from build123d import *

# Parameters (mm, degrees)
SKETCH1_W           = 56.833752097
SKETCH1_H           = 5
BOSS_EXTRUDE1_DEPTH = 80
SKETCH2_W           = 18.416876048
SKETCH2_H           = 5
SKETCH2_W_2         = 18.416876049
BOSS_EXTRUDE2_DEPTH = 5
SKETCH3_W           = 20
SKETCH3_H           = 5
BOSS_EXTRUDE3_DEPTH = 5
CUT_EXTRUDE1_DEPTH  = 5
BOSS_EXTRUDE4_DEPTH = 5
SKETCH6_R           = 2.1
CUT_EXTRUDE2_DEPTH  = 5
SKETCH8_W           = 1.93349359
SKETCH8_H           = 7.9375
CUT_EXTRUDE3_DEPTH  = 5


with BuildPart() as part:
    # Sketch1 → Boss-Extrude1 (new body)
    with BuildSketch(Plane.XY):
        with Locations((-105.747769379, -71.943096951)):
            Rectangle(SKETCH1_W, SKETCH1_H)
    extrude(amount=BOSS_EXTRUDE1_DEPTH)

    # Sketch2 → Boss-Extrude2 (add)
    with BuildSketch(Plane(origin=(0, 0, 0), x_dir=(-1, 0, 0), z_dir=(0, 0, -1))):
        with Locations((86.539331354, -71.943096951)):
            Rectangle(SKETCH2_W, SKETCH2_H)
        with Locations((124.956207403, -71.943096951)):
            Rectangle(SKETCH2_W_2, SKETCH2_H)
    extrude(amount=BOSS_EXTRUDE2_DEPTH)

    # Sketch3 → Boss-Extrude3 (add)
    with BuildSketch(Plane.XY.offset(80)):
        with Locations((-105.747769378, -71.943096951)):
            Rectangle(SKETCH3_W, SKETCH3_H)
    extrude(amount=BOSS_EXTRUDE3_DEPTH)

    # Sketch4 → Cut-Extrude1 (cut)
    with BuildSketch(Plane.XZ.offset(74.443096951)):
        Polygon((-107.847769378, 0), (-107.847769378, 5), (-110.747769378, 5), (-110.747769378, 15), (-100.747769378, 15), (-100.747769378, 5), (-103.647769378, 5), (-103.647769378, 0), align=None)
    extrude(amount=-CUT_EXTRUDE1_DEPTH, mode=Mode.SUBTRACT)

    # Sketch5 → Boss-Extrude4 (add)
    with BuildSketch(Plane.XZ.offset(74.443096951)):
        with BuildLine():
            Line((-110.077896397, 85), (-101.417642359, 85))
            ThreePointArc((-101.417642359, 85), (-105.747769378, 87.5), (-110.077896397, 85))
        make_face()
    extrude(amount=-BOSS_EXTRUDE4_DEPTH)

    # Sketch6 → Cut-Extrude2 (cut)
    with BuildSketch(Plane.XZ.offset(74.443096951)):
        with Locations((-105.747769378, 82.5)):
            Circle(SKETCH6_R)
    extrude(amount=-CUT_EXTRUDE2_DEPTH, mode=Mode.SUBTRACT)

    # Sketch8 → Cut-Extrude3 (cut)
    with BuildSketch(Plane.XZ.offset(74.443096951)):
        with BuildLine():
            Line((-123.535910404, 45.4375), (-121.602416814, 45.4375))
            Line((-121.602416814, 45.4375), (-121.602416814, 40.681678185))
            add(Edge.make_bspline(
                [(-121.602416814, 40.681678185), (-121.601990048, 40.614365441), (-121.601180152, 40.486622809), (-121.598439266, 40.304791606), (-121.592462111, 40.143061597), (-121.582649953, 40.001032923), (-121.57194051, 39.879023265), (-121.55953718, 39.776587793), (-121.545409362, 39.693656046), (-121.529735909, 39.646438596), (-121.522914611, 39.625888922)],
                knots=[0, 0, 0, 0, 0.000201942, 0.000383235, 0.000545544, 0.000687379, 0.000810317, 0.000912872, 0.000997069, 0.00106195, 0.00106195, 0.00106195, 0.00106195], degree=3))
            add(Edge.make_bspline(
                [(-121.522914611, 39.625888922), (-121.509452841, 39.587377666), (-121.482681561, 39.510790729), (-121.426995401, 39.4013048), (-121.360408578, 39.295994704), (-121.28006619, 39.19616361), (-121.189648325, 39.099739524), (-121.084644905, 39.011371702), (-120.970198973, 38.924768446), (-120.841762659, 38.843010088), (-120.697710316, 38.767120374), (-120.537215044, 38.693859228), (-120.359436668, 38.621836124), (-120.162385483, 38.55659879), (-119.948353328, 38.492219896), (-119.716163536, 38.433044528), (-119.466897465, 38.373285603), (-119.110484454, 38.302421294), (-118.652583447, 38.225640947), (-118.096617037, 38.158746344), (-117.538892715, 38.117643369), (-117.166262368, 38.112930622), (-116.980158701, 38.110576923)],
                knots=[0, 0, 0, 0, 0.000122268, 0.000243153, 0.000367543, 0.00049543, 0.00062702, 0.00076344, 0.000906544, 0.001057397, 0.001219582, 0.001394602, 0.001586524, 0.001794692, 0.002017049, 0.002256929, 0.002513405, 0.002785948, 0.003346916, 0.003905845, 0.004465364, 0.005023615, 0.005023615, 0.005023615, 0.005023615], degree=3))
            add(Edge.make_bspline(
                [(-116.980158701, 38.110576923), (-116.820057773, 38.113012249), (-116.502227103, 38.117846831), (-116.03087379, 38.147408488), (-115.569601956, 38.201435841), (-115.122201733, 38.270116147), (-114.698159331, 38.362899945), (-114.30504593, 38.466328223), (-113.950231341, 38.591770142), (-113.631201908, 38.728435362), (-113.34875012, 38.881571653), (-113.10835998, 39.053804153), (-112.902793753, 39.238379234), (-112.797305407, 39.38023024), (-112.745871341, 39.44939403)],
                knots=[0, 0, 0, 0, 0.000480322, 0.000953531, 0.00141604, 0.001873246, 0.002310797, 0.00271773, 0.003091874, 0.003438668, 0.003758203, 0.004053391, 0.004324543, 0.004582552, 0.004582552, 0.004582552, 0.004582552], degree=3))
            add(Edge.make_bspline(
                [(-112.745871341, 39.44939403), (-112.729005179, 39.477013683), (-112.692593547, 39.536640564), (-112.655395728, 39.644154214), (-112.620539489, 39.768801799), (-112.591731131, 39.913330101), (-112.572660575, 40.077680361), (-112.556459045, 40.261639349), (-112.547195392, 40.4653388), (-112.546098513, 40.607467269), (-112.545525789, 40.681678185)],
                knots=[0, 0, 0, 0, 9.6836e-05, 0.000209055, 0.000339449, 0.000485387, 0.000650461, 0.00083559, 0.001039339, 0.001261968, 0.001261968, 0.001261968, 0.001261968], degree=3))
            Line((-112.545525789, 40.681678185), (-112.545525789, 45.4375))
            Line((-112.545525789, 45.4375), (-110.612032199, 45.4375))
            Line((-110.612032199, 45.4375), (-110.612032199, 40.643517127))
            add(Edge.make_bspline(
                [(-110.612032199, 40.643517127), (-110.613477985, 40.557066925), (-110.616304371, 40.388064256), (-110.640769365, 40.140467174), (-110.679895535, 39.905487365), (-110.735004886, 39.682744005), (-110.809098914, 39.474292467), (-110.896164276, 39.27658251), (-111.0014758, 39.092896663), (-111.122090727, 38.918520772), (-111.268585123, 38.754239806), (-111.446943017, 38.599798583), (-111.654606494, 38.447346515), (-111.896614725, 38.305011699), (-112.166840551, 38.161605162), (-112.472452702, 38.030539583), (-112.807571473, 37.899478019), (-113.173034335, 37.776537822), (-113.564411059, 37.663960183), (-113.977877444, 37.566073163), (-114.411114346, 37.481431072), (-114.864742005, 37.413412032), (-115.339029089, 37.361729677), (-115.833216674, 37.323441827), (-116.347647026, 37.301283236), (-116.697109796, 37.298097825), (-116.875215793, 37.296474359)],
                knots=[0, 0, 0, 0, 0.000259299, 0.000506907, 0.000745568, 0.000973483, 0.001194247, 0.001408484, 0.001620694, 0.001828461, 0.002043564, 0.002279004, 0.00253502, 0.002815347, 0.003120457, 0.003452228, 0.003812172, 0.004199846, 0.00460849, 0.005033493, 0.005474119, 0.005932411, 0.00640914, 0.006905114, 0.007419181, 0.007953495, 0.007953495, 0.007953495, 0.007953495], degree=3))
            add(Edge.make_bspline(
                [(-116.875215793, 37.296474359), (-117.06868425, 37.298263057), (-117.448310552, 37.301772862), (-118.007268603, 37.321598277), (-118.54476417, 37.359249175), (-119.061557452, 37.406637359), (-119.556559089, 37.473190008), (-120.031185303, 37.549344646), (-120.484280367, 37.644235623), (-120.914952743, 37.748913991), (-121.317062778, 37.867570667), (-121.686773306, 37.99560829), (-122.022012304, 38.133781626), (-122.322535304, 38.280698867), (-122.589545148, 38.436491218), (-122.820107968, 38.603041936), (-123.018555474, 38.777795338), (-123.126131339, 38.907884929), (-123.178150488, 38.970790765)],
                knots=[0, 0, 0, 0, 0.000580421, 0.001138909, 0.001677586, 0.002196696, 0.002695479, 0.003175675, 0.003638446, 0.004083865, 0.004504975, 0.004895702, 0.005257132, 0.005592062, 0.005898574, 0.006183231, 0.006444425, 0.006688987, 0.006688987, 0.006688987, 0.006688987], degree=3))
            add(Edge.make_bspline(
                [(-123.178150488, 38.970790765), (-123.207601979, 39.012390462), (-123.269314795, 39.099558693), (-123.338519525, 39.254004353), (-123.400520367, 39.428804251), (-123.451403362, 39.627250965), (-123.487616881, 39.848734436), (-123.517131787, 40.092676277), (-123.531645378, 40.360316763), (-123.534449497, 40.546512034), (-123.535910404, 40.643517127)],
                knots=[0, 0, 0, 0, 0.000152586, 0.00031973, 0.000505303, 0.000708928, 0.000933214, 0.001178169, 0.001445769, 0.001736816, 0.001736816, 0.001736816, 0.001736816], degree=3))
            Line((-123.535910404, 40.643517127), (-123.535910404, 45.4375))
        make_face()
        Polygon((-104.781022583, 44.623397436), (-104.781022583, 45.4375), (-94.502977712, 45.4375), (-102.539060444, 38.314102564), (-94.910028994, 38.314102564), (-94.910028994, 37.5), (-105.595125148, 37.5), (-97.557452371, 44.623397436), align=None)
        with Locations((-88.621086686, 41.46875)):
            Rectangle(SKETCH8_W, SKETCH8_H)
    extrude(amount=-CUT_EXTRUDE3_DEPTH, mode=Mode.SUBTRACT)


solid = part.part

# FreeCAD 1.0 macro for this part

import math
import FreeCAD as App
import Part
import Sketcher
Q = App.Units.Quantity


def add_polygon(sketch, points):
    """Adds a closed chain of lines whose ends are joined by coincident constraints."""
    first, n = sketch.GeometryCount, len(points)
    for a, b in zip(points, points[1:] + points[:1]):
        sketch.addGeometry(Part.LineSegment(App.Vector(*a, 0), App.Vector(*b, 0)), False)
    for i in range(n):
        sketch.addConstraint(Sketcher.Constraint("Coincident", first + i, 2, first + (i + 1) % n, 1))

doc = App.newDocument("Part")
body = doc.addObject("PartDesign::Body", "Body")

# Sketch on XY plane
sketch1 = body.newObject("Sketcher::SketchObject", "Sketch")
sketch1.AttachmentSupport = (doc.getObject("XY_Plane"), [""])
sketch1.MapMode = "FlatFace"
add_polygon(sketch1, [(-134, -69), (-134, -74), (-77, -74), (-77, -69)])  # lines 0-3
sketch1.addConstraint([
    Sketcher.Constraint("Vertical", 0),
    Sketcher.Constraint("Horizontal", 1),
    Sketcher.Constraint("Vertical", 2),
    Sketcher.Constraint("Horizontal", 3),
    Sketcher.Constraint("DistanceY", 0, 2, 0, 1, Q("5 mm")),
    Sketcher.Constraint("DistanceX", 1, 1, 1, 2, Q("56.833752 mm")),
    Sketcher.Constraint("DistanceX", 0, 2, -1, 1, Q("134.164645 mm")),
    Sketcher.Constraint("DistanceY", 0, 2, -1, 1, Q("74.443097 mm")),
])
pad1 = body.newObject("PartDesign::Pad", "Pad")
pad1.Profile = sketch1
pad1.Length = 80

# Sketch on XY plane
sketch2 = body.newObject("Sketcher::SketchObject", "Sketch001")
sketch2.AttachmentSupport = (doc.getObject("XY_Plane"), [""])
sketch2.MapMode = "FlatFace"
add_polygon(sketch2, [(-77, -69), (-77, -74), (-96, -74), (-96, -69)])  # lines 0-3
add_polygon(sketch2, [(-116, -69), (-116, -74), (-134, -74), (-134, -69)])  # lines 4-7
sketch2.addConstraint([
    Sketcher.Constraint("Vertical", 0),
    Sketcher.Constraint("Horizontal", 1),
    Sketcher.Constraint("Vertical", 2),
    Sketcher.Constraint("Horizontal", 3),
    Sketcher.Constraint("Vertical", 4),
    Sketcher.Constraint("Horizontal", 5),
    Sketcher.Constraint("Vertical", 6),
    Sketcher.Constraint("Horizontal", 7),
    Sketcher.Constraint("Horizontal", 1, 2, 4, 2),
    Sketcher.Constraint("Horizontal", 3, 2, 6, 2),
    Sketcher.Constraint("Equal", 3, 5),
    Sketcher.Constraint("DistanceY", 0, 2, 0, 1, Q("5 mm")),
    Sketcher.Constraint("DistanceX", 4, 2, 1, 2, Q("20 mm")),
    Sketcher.Constraint("DistanceX", 1, 2, 1, 1, Q("18.416876 mm")),
    Sketcher.Constraint("DistanceX", 1, 2, -1, 1, Q("95.747769 mm")),
    Sketcher.Constraint("DistanceY", 0, 2, -1, 1, Q("74.443097 mm")),
])
pad2 = body.newObject("PartDesign::Pad", "Pad001")
pad2.Profile = sketch2
pad2.Length = 5
pad2.Reversed = True

# Sketch on XY plane
sketch3 = body.newObject("Sketcher::SketchObject", "Sketch002")
sketch3.AttachmentSupport = (doc.getObject("XY_Plane"), [""])
sketch3.MapMode = "FlatFace"
sketch3.AttachmentOffset = App.Placement(App.Vector(0, 0, 80), App.Rotation())
add_polygon(sketch3, [(-116, -69), (-116, -74), (-96, -74), (-96, -69)])  # lines 0-3
sketch3.addConstraint([
    Sketcher.Constraint("Vertical", 0),
    Sketcher.Constraint("Horizontal", 1),
    Sketcher.Constraint("Vertical", 2),
    Sketcher.Constraint("Horizontal", 3),
    Sketcher.Constraint("DistanceX", 1, 1, 1, 2, Q("20 mm")),
    Sketcher.Constraint("DistanceY", 0, 2, 0, 1, Q("5 mm")),
    Sketcher.Constraint("DistanceX", 0, 2, -1, 1, Q("115.747769 mm")),
    Sketcher.Constraint("DistanceY", 0, 2, -1, 1, Q("74.443097 mm")),
])
pad3 = body.newObject("PartDesign::Pad", "Pad002")
pad3.Profile = sketch3
pad3.Length = 5

# Sketch on XZ plane
sketch4 = body.newObject("Sketcher::SketchObject", "Sketch003")
sketch4.AttachmentSupport = (doc.getObject("XZ_Plane"), [""])
sketch4.MapMode = "FlatFace"
sketch4.AttachmentOffset = App.Placement(App.Vector(0, 0, 74.443097), App.Rotation())
add_polygon(sketch4, [(-107.8, 5), (-107.8, 0), (-103.6, 0), (-103.6, 5), (-100.7, 5), (-100.7, 15), (-110.7, 15), (-110.7, 5)])  # lines 0-7
sketch4.addConstraint([
    Sketcher.Constraint("Vertical", 0),
    Sketcher.Constraint("Horizontal", 1),
    Sketcher.Constraint("Vertical", 2),
    Sketcher.Constraint("Horizontal", 3),
    Sketcher.Constraint("Vertical", 4),
    Sketcher.Constraint("Horizontal", 5),
    Sketcher.Constraint("Vertical", 6),
    Sketcher.Constraint("Horizontal", 7),
    Sketcher.Constraint("PointOnObject", 0, 2, -1),
    Sketcher.Constraint("Horizontal", 3, 2, 6, 2),
    Sketcher.Constraint("Equal", 3, 7),
    Sketcher.Constraint("Equal", 5, 4),
    Sketcher.Constraint("DistanceX", 5, 2, 5, 1, Q("10 mm")),
    Sketcher.Constraint("DistanceY", 0, 2, 0, 1, Q("5 mm")),
    Sketcher.Constraint("DistanceX", 1, 1, 1, 2, Q("4.2 mm")),
    Sketcher.Constraint("DistanceX", 0, 2, -1, 1, Q("107.847769 mm")),
])
pocket1 = body.newObject("PartDesign::Pocket", "Pocket")
pocket1.Profile = sketch4
pocket1.Length = 5

# Sketch on XZ plane
sketch5 = body.newObject("Sketcher::SketchObject", "Sketch004")
sketch5.AttachmentSupport = (doc.getObject("XZ_Plane"), [""])
sketch5.MapMode = "FlatFace"
sketch5.AttachmentOffset = App.Placement(App.Vector(0, 0, 74.443097), App.Rotation())
sketch5.addGeometry([
    Part.LineSegment(App.Vector(-110, 85, 0), App.Vector(-101, 85, 0)),
    Part.ArcOfCircle(Part.Circle(App.Vector(-106, 82, 0), App.Vector(0, 0, 1), 5), math.radians(30), math.radians(150)),
], False)
sketch5.addConstraint([
    Sketcher.Constraint("Coincident", 0, 1, 1, 2),
    Sketcher.Constraint("Coincident", 1, 1, 0, 2),
    Sketcher.Constraint("Horizontal", 0),
    Sketcher.Constraint("Radius", 1, Q("5 mm")),
    Sketcher.Constraint("DistanceY", -1, 1, 0, 1, Q("85 mm")),
    Sketcher.Constraint("DistanceY", -1, 1, 1, 3, Q("82.5 mm")),
    Sketcher.Constraint("DistanceX", 1, 3, -1, 1, Q("105.747769 mm")),
])
pad4 = body.newObject("PartDesign::Pad", "Pad003")
pad4.Profile = sketch5
pad4.Length = 5
pad4.Reversed = True

# Sketch on XZ plane
sketch6 = body.newObject("Sketcher::SketchObject", "Sketch005")
sketch6.AttachmentSupport = (doc.getObject("XZ_Plane"), [""])
sketch6.MapMode = "FlatFace"
sketch6.AttachmentOffset = App.Placement(App.Vector(0, 0, 74.443097), App.Rotation())
sketch6.addGeometry(Part.Circle(App.Vector(-105.7, 82.5, 0), App.Vector(0, 0, 1), 2.1), False)
sketch6.addConstraint([
    Sketcher.Constraint("Diameter", 0, Q("4.2 mm")),
    Sketcher.Constraint("DistanceY", -1, 1, 0, 3, Q("82.5 mm")),
    Sketcher.Constraint("DistanceX", 0, 3, -1, 1, Q("105.747769 mm")),
])
pocket2 = body.newObject("PartDesign::Pocket", "Pocket001")
pocket2.Profile = sketch6
pocket2.Length = 5

# Sketch on XZ plane
sketch7 = body.newObject("Sketcher::SketchObject", "Sketch006")
sketch7.AttachmentSupport = (doc.getObject("XZ_Plane"), [""])
sketch7.MapMode = "FlatFace"
sketch7.AttachmentOffset = App.Placement(App.Vector(0, 0, 74.443097), App.Rotation())
sketch7.addGeometry(Part.LineSegment(App.Vector(-121.602417, 45.4375, 0), App.Vector(-123.53591, 45.4375, 0)), False)  # 0
sketch7.addGeometry(Part.LineSegment(App.Vector(-123.53591, 45.4375, 0), App.Vector(-123.53591, 40.643517, 0)), False)  # 1
sketch7.addGeometry(Part.BSplineCurve([App.Vector(-123.17815, 38.970791, 0), App.Vector(-123.207602, 39.01239, 0), App.Vector(-123.269315, 39.099559, 0), App.Vector(-123.33852, 39.254004, 0), App.Vector(-123.40052, 39.428804, 0), App.Vector(-123.451403, 39.627251, 0), App.Vector(-123.487617, 39.848734, 0), App.Vector(-123.517132, 40.092676, 0), App.Vector(-123.531645, 40.360317, 0), App.Vector(-123.534449, 40.546512, 0), App.Vector(-123.53591, 40.643517, 0)], [4, 1, 1, 1, 1, 1, 1, 1, 4], [0, 0.000152586, 0.00031973, 0.000505303, 0.000708928, 0.000933214, 0.001178169, 0.001445769, 0.001736816], False, 3, [1, 1, 1, 1, 1, 1, 1, 1, 1, 1, 1], False), False)  # 2
sketch7.addGeometry(Part.BSplineCurve([App.Vector(-116.875216, 37.296474, 0), App.Vector(-117.068684, 37.298263, 0), App.Vector(-117.448311, 37.301773, 0), App.Vector(-118.007269, 37.321598, 0), App.Vector(-118.544764, 37.359249, 0), App.Vector(-119.061557, 37.406637, 0), App.Vector(-119.556559, 37.47319, 0), App.Vector(-120.031185, 37.549345, 0), App.Vector(-120.48428, 37.644236, 0), App.Vector(-120.914953, 37.748914, 0), App.Vector(-121.317063, 37.867571, 0), App.Vector(-121.686773, 37.995608, 0), App.Vector(-122.022012, 38.133782, 0), App.Vector(-122.322535, 38.280699, 0), App.Vector(-122.589545, 38.436491, 0), App.Vector(-122.820108, 38.603042, 0), App.Vector(-123.018555, 38.777795, 0), App.Vector(-123.126131, 38.907885, 0), App.Vector(-123.17815, 38.970791, 0)], [4, 1, 1, 1, 1, 1, 1, 1, 1, 1, 1, 1, 1, 1, 1, 1, 4], [0, 0.000580421, 0.001138909, 0.001677586, 0.002196696, 0.002695479, 0.003175675, 0.003638446, 0.004083865, 0.004504975, 0.004895702, 0.005257132, 0.005592062, 0.005898574, 0.006183231, 0.006444425, 0.006688987], False, 3, [1, 1, 1, 1, 1, 1, 1, 1, 1, 1, 1, 1, 1, 1, 1, 1, 1, 1, 1], False), False)  # 3
sketch7.addGeometry(Part.BSplineCurve([App.Vector(-110.612032, 40.643517, 0), App.Vector(-110.613478, 40.557067, 0), App.Vector(-110.616304, 40.388064, 0), App.Vector(-110.640769, 40.140467, 0), App.Vector(-110.679896, 39.905487, 0), App.Vector(-110.735005, 39.682744, 0), App.Vector(-110.809099, 39.474292, 0), App.Vector(-110.896164, 39.276583, 0), App.Vector(-111.001476, 39.092897, 0), App.Vector(-111.122091, 38.918521, 0), App.Vector(-111.268585, 38.75424, 0), App.Vector(-111.446943, 38.599799, 0), App.Vector(-111.654606, 38.447347, 0), App.Vector(-111.896615, 38.305012, 0), App.Vector(-112.166841, 38.161605, 0), App.Vector(-112.472453, 38.03054, 0), App.Vector(-112.807571, 37.899478, 0), App.Vector(-113.173034, 37.776538, 0), App.Vector(-113.564411, 37.66396, 0), App.Vector(-113.977877, 37.566073, 0), App.Vector(-114.411114, 37.481431, 0), App.Vector(-114.864742, 37.413412, 0), App.Vector(-115.339029, 37.36173, 0), App.Vector(-115.833217, 37.323442, 0), App.Vector(-116.347647, 37.301283, 0), App.Vector(-116.69711, 37.298098, 0), App.Vector(-116.875216, 37.296474, 0)], [4, 1, 1, 1, 1, 1, 1, 1, 1, 1, 1, 1, 1, 1, 1, 1, 1, 1, 1, 1, 1, 1, 1, 1, 4], [0, 0.000259299, 0.000506907, 0.000745568, 0.000973483, 0.001194247, 0.001408484, 0.001620694, 0.001828461, 0.002043564, 0.002279004, 0.00253502, 0.002815347, 0.003120457, 0.003452228, 0.003812172, 0.004199846, 0.00460849, 0.005033493, 0.005474119, 0.005932411, 0.00640914, 0.006905114, 0.007419181, 0.007953495], False, 3, [1, 1, 1, 1, 1, 1, 1, 1, 1, 1, 1, 1, 1, 1, 1, 1, 1, 1, 1, 1, 1, 1, 1, 1, 1, 1, 1], False), False)  # 4
sketch7.addGeometry(Part.LineSegment(App.Vector(-110.612032, 40.643517, 0), App.Vector(-110.612032, 45.4375, 0)), False)  # 5
sketch7.addGeometry(Part.LineSegment(App.Vector(-110.612032, 45.4375, 0), App.Vector(-112.545526, 45.4375, 0)), False)  # 6
sketch7.addGeometry(Part.LineSegment(App.Vector(-112.545526, 45.4375, 0), App.Vector(-112.545526, 40.681678, 0)), False)  # 7
sketch7.addGeometry(Part.BSplineCurve([App.Vector(-112.745871, 39.449394, 0), App.Vector(-112.729005, 39.477014, 0), App.Vector(-112.692594, 39.536641, 0), App.Vector(-112.655396, 39.644154, 0), App.Vector(-112.620539, 39.768802, 0), App.Vector(-112.591731, 39.91333, 0), App.Vector(-112.572661, 40.07768, 0), App.Vector(-112.556459, 40.261639, 0), App.Vector(-112.547195, 40.465339, 0), App.Vector(-112.546099, 40.607467, 0), App.Vector(-112.545526, 40.681678, 0)], [4, 1, 1, 1, 1, 1, 1, 1, 4], [0, 0.000096836, 0.000209055, 0.000339449, 0.000485387, 0.000650461, 0.00083559, 0.001039339, 0.001261968], False, 3, [1, 1, 1, 1, 1, 1, 1, 1, 1, 1, 1], False), False)  # 8
sketch7.addGeometry(Part.BSplineCurve([App.Vector(-116.980159, 38.110577, 0), App.Vector(-116.820058, 38.113012, 0), App.Vector(-116.502227, 38.117847, 0), App.Vector(-116.030874, 38.147408, 0), App.Vector(-115.569602, 38.201436, 0), App.Vector(-115.122202, 38.270116, 0), App.Vector(-114.698159, 38.3629, 0), App.Vector(-114.305046, 38.466328, 0), App.Vector(-113.950231, 38.59177, 0), App.Vector(-113.631202, 38.728435, 0), App.Vector(-113.34875, 38.881572, 0), App.Vector(-113.10836, 39.053804, 0), App.Vector(-112.902794, 39.238379, 0), App.Vector(-112.797305, 39.38023, 0), App.Vector(-112.745871, 39.449394, 0)], [4, 1, 1, 1, 1, 1, 1, 1, 1, 1, 1, 1, 4], [0, 0.000480322, 0.000953531, 0.00141604, 0.001873246, 0.002310797, 0.00271773, 0.003091874, 0.003438668, 0.003758203, 0.004053391, 0.004324543, 0.004582552], False, 3, [1, 1, 1, 1, 1, 1, 1, 1, 1, 1, 1, 1, 1, 1, 1], False), False)  # 9
sketch7.addGeometry(Part.BSplineCurve([App.Vector(-121.522915, 39.625889, 0), App.Vector(-121.509453, 39.587378, 0), App.Vector(-121.482682, 39.510791, 0), App.Vector(-121.426995, 39.401305, 0), App.Vector(-121.360409, 39.295995, 0), App.Vector(-121.280066, 39.196164, 0), App.Vector(-121.189648, 39.09974, 0), App.Vector(-121.084645, 39.011372, 0), App.Vector(-120.970199, 38.924768, 0), App.Vector(-120.841763, 38.84301, 0), App.Vector(-120.69771, 38.76712, 0), App.Vector(-120.537215, 38.693859, 0), App.Vector(-120.359437, 38.621836, 0), App.Vector(-120.162385, 38.556599, 0), App.Vector(-119.948353, 38.49222, 0), App.Vector(-119.716164, 38.433045, 0), App.Vector(-119.466897, 38.373286, 0), App.Vector(-119.110484, 38.302421, 0), App.Vector(-118.652583, 38.225641, 0), App.Vector(-118.096617, 38.158746, 0), App.Vector(-117.538893, 38.117643, 0), App.Vector(-117.166262, 38.112931, 0), App.Vector(-116.980159, 38.110577, 0)], [4, 1, 1, 1, 1, 1, 1, 1, 1, 1, 1, 1, 1, 1, 1, 1, 1, 1, 1, 1, 4], [0, 0.000122268, 0.000243153, 0.000367543, 0.00049543, 0.00062702, 0.00076344, 0.000906544, 0.001057397, 0.001219582, 0.001394602, 0.001586524, 0.001794692, 0.002017049, 0.002256929, 0.002513405, 0.002785948, 0.003346916, 0.003905845, 0.004465364, 0.005023615], False, 3, [1, 1, 1, 1, 1, 1, 1, 1, 1, 1, 1, 1, 1, 1, 1, 1, 1, 1, 1, 1, 1, 1, 1], False), False)  # 10
sketch7.addGeometry(Part.BSplineCurve([App.Vector(-121.602417, 40.681678, 0), App.Vector(-121.60199, 40.614365, 0), App.Vector(-121.60118, 40.486623, 0), App.Vector(-121.598439, 40.304792, 0), App.Vector(-121.592462, 40.143062, 0), App.Vector(-121.58265, 40.001033, 0), App.Vector(-121.571941, 39.879023, 0), App.Vector(-121.559537, 39.776588, 0), App.Vector(-121.545409, 39.693656, 0), App.Vector(-121.529736, 39.646439, 0), App.Vector(-121.522915, 39.625889, 0)], [4, 1, 1, 1, 1, 1, 1, 1, 4], [0, 0.000201942, 0.000383235, 0.000545544, 0.000687379, 0.000810317, 0.000912872, 0.000997069, 0.00106195], False, 3, [1, 1, 1, 1, 1, 1, 1, 1, 1, 1, 1], False), False)  # 11
sketch7.addGeometry(Part.LineSegment(App.Vector(-121.602417, 40.681678, 0), App.Vector(-121.602417, 45.4375, 0)), False)  # 12
add_polygon(sketch7, [(-104.781023, 45.4375), (-104.781023, 44.623397), (-97.557452, 44.623397), (-105.595125, 37.5), (-94.910029, 37.5), (-94.910029, 38.314103), (-102.53906, 38.314103), (-94.502978, 45.4375)])  # lines 13-20
add_polygon(sketch7, [(-89.587833, 45.4375), (-89.587833, 37.5), (-87.65434, 37.5), (-87.65434, 45.4375)])  # lines 21-24
sketch7.addConstraint([
    Sketcher.Constraint("Block", 2),
    Sketcher.Constraint("Block", 3),
    Sketcher.Constraint("Block", 4),
    Sketcher.Constraint("Block", 8),
    Sketcher.Constraint("Block", 9),
    Sketcher.Constraint("Block", 10),
    Sketcher.Constraint("Block", 11),
    Sketcher.Constraint("Coincident", 0, 2, 1, 1),
    Sketcher.Constraint("Coincident", 1, 2, 2, 2),
    Sketcher.Constraint("Coincident", 4, 1, 5, 1),
    Sketcher.Constraint("Coincident", 5, 2, 6, 1),
    Sketcher.Constraint("Coincident", 6, 2, 7, 1),
    Sketcher.Constraint("Coincident", 7, 2, 8, 2),
    Sketcher.Constraint("Coincident", 11, 1, 12, 1),
    Sketcher.Constraint("Coincident", 12, 2, 0, 1),
    Sketcher.Constraint("Horizontal", 0),
    Sketcher.Constraint("Vertical", 1),
    Sketcher.Constraint("Vertical", 5),
    Sketcher.Constraint("Horizontal", 6),
    Sketcher.Constraint("Vertical", 7),
    Sketcher.Constraint("Vertical", 12),
    Sketcher.Constraint("Vertical", 13),
    Sketcher.Constraint("Horizontal", 14),
    Sketcher.Constraint("Horizontal", 16),
    Sketcher.Constraint("Vertical", 17),
    Sketcher.Constraint("Horizontal", 18),
    Sketcher.Constraint("Horizontal", 20),
    Sketcher.Constraint("Vertical", 21),
    Sketcher.Constraint("Horizontal", 22),
    Sketcher.Constraint("Vertical", 23),
    Sketcher.Constraint("Horizontal", 24),
    Sketcher.Constraint("Horizontal", 0, 2, 5, 2),
    Sketcher.Constraint("Horizontal", 12, 2, 19, 2),
    Sketcher.Constraint("Horizontal", 16, 2, 21, 2),
    Sketcher.Constraint("Horizontal", 20, 2, 23, 2),
    Sketcher.Constraint("Equal", 6, 22),
    Sketcher.Constraint("Equal", 13, 17),
    Sketcher.Constraint("DistanceY", -1, 1, 15, 2, Q("37.5 mm")),
    Sketcher.Constraint("DistanceY", 21, 2, 21, 1, Q("7.9375 mm")),
    Sketcher.Constraint("DistanceX", 14, 1, 14, 2, Q("7.22357 mm")),
    Sketcher.Constraint("DistanceX", 18, 2, 18, 1, Q("7.629031 mm")),
    Sketcher.Constraint("DistanceX", 7, 2, 15, 2, Q("6.950401 mm")),
    Sketcher.Constraint("Distance", 15, Q("10.739971 mm")),
    Sketcher.Constraint("Distance", 19, Q("10.738781 mm")),
    Sketcher.Constraint("DistanceX", 16, 1, 16, 2, Q("10.685096 mm")),
    Sketcher.Constraint("DistanceY", 13, 2, 13, 1, Q("0.814103 mm")),
    Sketcher.Constraint("DistanceX", 22, 2, -1, 1, Q("87.65434 mm")),
])
pocket3 = body.newObject("PartDesign::Pocket", "Pocket002")
pocket3.Profile = sketch7
pocket3.Length = 5

doc.recompute()
